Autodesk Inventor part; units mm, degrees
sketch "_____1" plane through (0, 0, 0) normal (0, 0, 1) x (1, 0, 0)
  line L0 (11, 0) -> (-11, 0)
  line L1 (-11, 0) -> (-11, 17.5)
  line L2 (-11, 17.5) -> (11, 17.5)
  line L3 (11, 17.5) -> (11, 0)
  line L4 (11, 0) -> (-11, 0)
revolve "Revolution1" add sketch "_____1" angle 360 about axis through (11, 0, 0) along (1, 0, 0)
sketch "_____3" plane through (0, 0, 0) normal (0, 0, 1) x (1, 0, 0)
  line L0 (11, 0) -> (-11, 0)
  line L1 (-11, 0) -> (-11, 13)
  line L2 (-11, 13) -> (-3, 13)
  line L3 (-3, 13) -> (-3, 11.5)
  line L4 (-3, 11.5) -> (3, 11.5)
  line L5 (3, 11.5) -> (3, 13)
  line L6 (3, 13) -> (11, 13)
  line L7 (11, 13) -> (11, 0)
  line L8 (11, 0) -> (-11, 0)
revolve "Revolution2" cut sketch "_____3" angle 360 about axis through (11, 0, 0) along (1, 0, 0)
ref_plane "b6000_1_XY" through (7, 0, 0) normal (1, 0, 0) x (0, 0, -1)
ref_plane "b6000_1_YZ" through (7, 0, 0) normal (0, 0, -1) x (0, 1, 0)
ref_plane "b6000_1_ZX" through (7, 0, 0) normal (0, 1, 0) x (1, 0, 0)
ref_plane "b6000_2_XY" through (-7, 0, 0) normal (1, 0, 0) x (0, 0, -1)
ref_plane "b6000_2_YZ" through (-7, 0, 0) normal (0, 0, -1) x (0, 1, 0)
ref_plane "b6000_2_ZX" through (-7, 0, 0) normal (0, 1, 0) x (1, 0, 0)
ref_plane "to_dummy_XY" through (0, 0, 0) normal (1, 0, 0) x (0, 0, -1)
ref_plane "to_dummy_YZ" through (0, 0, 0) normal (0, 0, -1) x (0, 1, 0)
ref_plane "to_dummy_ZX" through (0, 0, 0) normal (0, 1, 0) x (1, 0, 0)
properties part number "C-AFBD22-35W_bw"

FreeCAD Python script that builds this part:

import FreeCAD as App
import Part
import Sketcher
Q = App.Units.Quantity

doc = App.newDocument("Part")
body = doc.addObject("PartDesign::Body", "Body")

# Sketch on XY plane
sketch1 = body.newObject("Sketcher::SketchObject", "Sketch")
sketch1.AttachmentSupport = (doc.getObject("XY_Plane"), [""])
sketch1.MapMode = "FlatFace"
sketch1.addGeometry([
    Part.LineSegment(App.Vector(-11, 0, 0), App.Vector(11, 0, 0)),
    Part.LineSegment(App.Vector(11, 0, 0), App.Vector(11, 17.5, 0)),
    Part.LineSegment(App.Vector(11, 17.5, 0), App.Vector(-11, 17.5, 0)),
    Part.LineSegment(App.Vector(-11, 17.5, 0), App.Vector(-11, 0, 0)),
], False)
sketch1.addConstraint([
    Sketcher.Constraint("Coincident", 0, 2, 1, 1),
    Sketcher.Constraint("Coincident", 1, 2, 2, 1),
    Sketcher.Constraint("Coincident", 2, 2, 3, 1),
    Sketcher.Constraint("Coincident", 3, 2, 0, 1),
    Sketcher.Constraint("Horizontal", 0),
    Sketcher.Constraint("Vertical", 1),
    Sketcher.Constraint("Horizontal", 2),
    Sketcher.Constraint("Vertical", 3),
    Sketcher.Constraint("Symmetric", 0, 2, 3, 2, -1, 1),
    Sketcher.Constraint("DistanceX", 0, 1, 0, 2, Q("22 mm")),
    Sketcher.Constraint("DistanceY", 1, 1, 1, 2, Q("17.5 mm")),
])
revolution = body.newObject("PartDesign::Revolution", "Revolution")
revolution.Profile = sketch1
revolution.ReferenceAxis = (sketch1, ["H_Axis"])
revolution.Angle = 360

# Sketch on XY plane
sketch2 = body.newObject("Sketcher::SketchObject", "Sketch001")
sketch2.AttachmentSupport = (doc.getObject("XY_Plane"), [""])
sketch2.MapMode = "FlatFace"
sketch2.addGeometry([
    Part.LineSegment(App.Vector(-11, 0, 0), App.Vector(11, 0, 0)),  # 0
    Part.LineSegment(App.Vector(11, 0, 0), App.Vector(11, 13, 0)),  # 1
    Part.LineSegment(App.Vector(11, 13, 0), App.Vector(3, 13, 0)),  # 2
    Part.LineSegment(App.Vector(3, 13, 0), App.Vector(3, 11.5, 0)),  # 3
    Part.LineSegment(App.Vector(3, 11.5, 0), App.Vector(-3, 11.5, 0)),  # 4
    Part.LineSegment(App.Vector(-3, 11.5, 0), App.Vector(-3, 13, 0)),  # 5
    Part.LineSegment(App.Vector(-3, 13, 0), App.Vector(-11, 13, 0)),  # 6
    Part.LineSegment(App.Vector(-11, 13, 0), App.Vector(-11, 0, 0)),  # 7
], False)
sketch2.addConstraint([
    Sketcher.Constraint("Coincident", 0, 2, 1, 1),
    Sketcher.Constraint("Coincident", 1, 2, 2, 1),
    Sketcher.Constraint("Coincident", 2, 2, 3, 1),
    Sketcher.Constraint("Coincident", 3, 2, 4, 1),
    Sketcher.Constraint("Coincident", 4, 2, 5, 1),
    Sketcher.Constraint("Coincident", 5, 2, 6, 1),
    Sketcher.Constraint("Coincident", 6, 2, 7, 1),
    Sketcher.Constraint("Coincident", 7, 2, 0, 1),
    Sketcher.Constraint("Horizontal", 0),
    Sketcher.Constraint("Vertical", 1),
    Sketcher.Constraint("Horizontal", 2),
    Sketcher.Constraint("Vertical", 3),
    Sketcher.Constraint("Horizontal", 4),
    Sketcher.Constraint("Vertical", 5),
    Sketcher.Constraint("Horizontal", 6),
    Sketcher.Constraint("Vertical", 7),
    Sketcher.Constraint("Symmetric", 0, 2, 7, 2, -1, 1),
    Sketcher.Constraint("Symmetric", 2, 2, 5, 2, -2),
    Sketcher.Constraint("DistanceX", 0, 1, 0, 2, Q("22 mm")),
    Sketcher.Constraint("DistanceX", 2, 2, 2, 1, Q("8 mm")),
    Sketcher.Constraint("DistanceY", 1, 1, 1, 2, Q("13 mm")),
    Sketcher.Constraint("DistanceY", 3, 2, 3, 1, Q("1.5 mm")),
])
groove = body.newObject("PartDesign::Groove", "Groove")
groove.Profile = sketch2
groove.ReferenceAxis = (sketch2, ["H_Axis"])
groove.Angle = 360

doc.recompute()
